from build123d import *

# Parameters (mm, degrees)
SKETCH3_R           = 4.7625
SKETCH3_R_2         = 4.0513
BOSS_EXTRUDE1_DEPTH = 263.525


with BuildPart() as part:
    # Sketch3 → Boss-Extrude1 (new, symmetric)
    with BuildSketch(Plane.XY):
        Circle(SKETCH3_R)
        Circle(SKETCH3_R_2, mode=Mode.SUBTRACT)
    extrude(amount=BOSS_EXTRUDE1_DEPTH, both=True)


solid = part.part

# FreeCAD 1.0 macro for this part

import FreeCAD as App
import Part
import Sketcher
Q = App.Units.Quantity

doc = App.newDocument("Part")
params = doc.addObject("Spreadsheet::Sheet", "Params")
for row, (alias, value) in enumerate([
    ("sketch1_diameter", "0.375 in"),
    ("sketch1_diameter2", "0.319 in"),
    ("pad1_length", "20.75 in"),
], start=1):
    params.set(f"A{row}", alias)
    params.set(f"B{row}", "=" + value)
    params.setAlias(f"B{row}", alias)

body = doc.addObject("PartDesign::Body", "Body")

# Sketch on XY plane
sketch1 = doc.addObject("Sketcher::SketchObject", "Sketch")
body.addObject(sketch1)
sketch1.AttachmentSupport = (doc.XY_Plane, [""])
sketch1.MapMode = "FlatFace"
sketch1.addGeometry([
    Part.Circle(App.Vector(0, 0, 0), App.Vector(0, 0, 1), 4.7625),
    Part.Circle(App.Vector(0, 0, 0), App.Vector(0, 0, 1), 4.0513),
], False)
sketch1.addConstraint([
    Sketcher.Constraint("Coincident", 0, 3, -1, 1),
    Sketcher.Constraint("Coincident", 1, 3, -1, 1),
    Sketcher.Constraint("Diameter", 0, Q("0.375 in")),
    Sketcher.Constraint("Diameter", 1, Q("0.319 in")),
])
sketch1.setExpression("Constraints[2]", "Params.sketch1_diameter")
sketch1.setExpression("Constraints[3]", "Params.sketch1_diameter2")
pad1 = doc.addObject("PartDesign::Pad", "Pad")
body.addObject(pad1)
pad1.Profile = sketch1
pad1.setExpression("Length", "Params.pad1_length")
pad1.Midplane = True

doc.recompute()
